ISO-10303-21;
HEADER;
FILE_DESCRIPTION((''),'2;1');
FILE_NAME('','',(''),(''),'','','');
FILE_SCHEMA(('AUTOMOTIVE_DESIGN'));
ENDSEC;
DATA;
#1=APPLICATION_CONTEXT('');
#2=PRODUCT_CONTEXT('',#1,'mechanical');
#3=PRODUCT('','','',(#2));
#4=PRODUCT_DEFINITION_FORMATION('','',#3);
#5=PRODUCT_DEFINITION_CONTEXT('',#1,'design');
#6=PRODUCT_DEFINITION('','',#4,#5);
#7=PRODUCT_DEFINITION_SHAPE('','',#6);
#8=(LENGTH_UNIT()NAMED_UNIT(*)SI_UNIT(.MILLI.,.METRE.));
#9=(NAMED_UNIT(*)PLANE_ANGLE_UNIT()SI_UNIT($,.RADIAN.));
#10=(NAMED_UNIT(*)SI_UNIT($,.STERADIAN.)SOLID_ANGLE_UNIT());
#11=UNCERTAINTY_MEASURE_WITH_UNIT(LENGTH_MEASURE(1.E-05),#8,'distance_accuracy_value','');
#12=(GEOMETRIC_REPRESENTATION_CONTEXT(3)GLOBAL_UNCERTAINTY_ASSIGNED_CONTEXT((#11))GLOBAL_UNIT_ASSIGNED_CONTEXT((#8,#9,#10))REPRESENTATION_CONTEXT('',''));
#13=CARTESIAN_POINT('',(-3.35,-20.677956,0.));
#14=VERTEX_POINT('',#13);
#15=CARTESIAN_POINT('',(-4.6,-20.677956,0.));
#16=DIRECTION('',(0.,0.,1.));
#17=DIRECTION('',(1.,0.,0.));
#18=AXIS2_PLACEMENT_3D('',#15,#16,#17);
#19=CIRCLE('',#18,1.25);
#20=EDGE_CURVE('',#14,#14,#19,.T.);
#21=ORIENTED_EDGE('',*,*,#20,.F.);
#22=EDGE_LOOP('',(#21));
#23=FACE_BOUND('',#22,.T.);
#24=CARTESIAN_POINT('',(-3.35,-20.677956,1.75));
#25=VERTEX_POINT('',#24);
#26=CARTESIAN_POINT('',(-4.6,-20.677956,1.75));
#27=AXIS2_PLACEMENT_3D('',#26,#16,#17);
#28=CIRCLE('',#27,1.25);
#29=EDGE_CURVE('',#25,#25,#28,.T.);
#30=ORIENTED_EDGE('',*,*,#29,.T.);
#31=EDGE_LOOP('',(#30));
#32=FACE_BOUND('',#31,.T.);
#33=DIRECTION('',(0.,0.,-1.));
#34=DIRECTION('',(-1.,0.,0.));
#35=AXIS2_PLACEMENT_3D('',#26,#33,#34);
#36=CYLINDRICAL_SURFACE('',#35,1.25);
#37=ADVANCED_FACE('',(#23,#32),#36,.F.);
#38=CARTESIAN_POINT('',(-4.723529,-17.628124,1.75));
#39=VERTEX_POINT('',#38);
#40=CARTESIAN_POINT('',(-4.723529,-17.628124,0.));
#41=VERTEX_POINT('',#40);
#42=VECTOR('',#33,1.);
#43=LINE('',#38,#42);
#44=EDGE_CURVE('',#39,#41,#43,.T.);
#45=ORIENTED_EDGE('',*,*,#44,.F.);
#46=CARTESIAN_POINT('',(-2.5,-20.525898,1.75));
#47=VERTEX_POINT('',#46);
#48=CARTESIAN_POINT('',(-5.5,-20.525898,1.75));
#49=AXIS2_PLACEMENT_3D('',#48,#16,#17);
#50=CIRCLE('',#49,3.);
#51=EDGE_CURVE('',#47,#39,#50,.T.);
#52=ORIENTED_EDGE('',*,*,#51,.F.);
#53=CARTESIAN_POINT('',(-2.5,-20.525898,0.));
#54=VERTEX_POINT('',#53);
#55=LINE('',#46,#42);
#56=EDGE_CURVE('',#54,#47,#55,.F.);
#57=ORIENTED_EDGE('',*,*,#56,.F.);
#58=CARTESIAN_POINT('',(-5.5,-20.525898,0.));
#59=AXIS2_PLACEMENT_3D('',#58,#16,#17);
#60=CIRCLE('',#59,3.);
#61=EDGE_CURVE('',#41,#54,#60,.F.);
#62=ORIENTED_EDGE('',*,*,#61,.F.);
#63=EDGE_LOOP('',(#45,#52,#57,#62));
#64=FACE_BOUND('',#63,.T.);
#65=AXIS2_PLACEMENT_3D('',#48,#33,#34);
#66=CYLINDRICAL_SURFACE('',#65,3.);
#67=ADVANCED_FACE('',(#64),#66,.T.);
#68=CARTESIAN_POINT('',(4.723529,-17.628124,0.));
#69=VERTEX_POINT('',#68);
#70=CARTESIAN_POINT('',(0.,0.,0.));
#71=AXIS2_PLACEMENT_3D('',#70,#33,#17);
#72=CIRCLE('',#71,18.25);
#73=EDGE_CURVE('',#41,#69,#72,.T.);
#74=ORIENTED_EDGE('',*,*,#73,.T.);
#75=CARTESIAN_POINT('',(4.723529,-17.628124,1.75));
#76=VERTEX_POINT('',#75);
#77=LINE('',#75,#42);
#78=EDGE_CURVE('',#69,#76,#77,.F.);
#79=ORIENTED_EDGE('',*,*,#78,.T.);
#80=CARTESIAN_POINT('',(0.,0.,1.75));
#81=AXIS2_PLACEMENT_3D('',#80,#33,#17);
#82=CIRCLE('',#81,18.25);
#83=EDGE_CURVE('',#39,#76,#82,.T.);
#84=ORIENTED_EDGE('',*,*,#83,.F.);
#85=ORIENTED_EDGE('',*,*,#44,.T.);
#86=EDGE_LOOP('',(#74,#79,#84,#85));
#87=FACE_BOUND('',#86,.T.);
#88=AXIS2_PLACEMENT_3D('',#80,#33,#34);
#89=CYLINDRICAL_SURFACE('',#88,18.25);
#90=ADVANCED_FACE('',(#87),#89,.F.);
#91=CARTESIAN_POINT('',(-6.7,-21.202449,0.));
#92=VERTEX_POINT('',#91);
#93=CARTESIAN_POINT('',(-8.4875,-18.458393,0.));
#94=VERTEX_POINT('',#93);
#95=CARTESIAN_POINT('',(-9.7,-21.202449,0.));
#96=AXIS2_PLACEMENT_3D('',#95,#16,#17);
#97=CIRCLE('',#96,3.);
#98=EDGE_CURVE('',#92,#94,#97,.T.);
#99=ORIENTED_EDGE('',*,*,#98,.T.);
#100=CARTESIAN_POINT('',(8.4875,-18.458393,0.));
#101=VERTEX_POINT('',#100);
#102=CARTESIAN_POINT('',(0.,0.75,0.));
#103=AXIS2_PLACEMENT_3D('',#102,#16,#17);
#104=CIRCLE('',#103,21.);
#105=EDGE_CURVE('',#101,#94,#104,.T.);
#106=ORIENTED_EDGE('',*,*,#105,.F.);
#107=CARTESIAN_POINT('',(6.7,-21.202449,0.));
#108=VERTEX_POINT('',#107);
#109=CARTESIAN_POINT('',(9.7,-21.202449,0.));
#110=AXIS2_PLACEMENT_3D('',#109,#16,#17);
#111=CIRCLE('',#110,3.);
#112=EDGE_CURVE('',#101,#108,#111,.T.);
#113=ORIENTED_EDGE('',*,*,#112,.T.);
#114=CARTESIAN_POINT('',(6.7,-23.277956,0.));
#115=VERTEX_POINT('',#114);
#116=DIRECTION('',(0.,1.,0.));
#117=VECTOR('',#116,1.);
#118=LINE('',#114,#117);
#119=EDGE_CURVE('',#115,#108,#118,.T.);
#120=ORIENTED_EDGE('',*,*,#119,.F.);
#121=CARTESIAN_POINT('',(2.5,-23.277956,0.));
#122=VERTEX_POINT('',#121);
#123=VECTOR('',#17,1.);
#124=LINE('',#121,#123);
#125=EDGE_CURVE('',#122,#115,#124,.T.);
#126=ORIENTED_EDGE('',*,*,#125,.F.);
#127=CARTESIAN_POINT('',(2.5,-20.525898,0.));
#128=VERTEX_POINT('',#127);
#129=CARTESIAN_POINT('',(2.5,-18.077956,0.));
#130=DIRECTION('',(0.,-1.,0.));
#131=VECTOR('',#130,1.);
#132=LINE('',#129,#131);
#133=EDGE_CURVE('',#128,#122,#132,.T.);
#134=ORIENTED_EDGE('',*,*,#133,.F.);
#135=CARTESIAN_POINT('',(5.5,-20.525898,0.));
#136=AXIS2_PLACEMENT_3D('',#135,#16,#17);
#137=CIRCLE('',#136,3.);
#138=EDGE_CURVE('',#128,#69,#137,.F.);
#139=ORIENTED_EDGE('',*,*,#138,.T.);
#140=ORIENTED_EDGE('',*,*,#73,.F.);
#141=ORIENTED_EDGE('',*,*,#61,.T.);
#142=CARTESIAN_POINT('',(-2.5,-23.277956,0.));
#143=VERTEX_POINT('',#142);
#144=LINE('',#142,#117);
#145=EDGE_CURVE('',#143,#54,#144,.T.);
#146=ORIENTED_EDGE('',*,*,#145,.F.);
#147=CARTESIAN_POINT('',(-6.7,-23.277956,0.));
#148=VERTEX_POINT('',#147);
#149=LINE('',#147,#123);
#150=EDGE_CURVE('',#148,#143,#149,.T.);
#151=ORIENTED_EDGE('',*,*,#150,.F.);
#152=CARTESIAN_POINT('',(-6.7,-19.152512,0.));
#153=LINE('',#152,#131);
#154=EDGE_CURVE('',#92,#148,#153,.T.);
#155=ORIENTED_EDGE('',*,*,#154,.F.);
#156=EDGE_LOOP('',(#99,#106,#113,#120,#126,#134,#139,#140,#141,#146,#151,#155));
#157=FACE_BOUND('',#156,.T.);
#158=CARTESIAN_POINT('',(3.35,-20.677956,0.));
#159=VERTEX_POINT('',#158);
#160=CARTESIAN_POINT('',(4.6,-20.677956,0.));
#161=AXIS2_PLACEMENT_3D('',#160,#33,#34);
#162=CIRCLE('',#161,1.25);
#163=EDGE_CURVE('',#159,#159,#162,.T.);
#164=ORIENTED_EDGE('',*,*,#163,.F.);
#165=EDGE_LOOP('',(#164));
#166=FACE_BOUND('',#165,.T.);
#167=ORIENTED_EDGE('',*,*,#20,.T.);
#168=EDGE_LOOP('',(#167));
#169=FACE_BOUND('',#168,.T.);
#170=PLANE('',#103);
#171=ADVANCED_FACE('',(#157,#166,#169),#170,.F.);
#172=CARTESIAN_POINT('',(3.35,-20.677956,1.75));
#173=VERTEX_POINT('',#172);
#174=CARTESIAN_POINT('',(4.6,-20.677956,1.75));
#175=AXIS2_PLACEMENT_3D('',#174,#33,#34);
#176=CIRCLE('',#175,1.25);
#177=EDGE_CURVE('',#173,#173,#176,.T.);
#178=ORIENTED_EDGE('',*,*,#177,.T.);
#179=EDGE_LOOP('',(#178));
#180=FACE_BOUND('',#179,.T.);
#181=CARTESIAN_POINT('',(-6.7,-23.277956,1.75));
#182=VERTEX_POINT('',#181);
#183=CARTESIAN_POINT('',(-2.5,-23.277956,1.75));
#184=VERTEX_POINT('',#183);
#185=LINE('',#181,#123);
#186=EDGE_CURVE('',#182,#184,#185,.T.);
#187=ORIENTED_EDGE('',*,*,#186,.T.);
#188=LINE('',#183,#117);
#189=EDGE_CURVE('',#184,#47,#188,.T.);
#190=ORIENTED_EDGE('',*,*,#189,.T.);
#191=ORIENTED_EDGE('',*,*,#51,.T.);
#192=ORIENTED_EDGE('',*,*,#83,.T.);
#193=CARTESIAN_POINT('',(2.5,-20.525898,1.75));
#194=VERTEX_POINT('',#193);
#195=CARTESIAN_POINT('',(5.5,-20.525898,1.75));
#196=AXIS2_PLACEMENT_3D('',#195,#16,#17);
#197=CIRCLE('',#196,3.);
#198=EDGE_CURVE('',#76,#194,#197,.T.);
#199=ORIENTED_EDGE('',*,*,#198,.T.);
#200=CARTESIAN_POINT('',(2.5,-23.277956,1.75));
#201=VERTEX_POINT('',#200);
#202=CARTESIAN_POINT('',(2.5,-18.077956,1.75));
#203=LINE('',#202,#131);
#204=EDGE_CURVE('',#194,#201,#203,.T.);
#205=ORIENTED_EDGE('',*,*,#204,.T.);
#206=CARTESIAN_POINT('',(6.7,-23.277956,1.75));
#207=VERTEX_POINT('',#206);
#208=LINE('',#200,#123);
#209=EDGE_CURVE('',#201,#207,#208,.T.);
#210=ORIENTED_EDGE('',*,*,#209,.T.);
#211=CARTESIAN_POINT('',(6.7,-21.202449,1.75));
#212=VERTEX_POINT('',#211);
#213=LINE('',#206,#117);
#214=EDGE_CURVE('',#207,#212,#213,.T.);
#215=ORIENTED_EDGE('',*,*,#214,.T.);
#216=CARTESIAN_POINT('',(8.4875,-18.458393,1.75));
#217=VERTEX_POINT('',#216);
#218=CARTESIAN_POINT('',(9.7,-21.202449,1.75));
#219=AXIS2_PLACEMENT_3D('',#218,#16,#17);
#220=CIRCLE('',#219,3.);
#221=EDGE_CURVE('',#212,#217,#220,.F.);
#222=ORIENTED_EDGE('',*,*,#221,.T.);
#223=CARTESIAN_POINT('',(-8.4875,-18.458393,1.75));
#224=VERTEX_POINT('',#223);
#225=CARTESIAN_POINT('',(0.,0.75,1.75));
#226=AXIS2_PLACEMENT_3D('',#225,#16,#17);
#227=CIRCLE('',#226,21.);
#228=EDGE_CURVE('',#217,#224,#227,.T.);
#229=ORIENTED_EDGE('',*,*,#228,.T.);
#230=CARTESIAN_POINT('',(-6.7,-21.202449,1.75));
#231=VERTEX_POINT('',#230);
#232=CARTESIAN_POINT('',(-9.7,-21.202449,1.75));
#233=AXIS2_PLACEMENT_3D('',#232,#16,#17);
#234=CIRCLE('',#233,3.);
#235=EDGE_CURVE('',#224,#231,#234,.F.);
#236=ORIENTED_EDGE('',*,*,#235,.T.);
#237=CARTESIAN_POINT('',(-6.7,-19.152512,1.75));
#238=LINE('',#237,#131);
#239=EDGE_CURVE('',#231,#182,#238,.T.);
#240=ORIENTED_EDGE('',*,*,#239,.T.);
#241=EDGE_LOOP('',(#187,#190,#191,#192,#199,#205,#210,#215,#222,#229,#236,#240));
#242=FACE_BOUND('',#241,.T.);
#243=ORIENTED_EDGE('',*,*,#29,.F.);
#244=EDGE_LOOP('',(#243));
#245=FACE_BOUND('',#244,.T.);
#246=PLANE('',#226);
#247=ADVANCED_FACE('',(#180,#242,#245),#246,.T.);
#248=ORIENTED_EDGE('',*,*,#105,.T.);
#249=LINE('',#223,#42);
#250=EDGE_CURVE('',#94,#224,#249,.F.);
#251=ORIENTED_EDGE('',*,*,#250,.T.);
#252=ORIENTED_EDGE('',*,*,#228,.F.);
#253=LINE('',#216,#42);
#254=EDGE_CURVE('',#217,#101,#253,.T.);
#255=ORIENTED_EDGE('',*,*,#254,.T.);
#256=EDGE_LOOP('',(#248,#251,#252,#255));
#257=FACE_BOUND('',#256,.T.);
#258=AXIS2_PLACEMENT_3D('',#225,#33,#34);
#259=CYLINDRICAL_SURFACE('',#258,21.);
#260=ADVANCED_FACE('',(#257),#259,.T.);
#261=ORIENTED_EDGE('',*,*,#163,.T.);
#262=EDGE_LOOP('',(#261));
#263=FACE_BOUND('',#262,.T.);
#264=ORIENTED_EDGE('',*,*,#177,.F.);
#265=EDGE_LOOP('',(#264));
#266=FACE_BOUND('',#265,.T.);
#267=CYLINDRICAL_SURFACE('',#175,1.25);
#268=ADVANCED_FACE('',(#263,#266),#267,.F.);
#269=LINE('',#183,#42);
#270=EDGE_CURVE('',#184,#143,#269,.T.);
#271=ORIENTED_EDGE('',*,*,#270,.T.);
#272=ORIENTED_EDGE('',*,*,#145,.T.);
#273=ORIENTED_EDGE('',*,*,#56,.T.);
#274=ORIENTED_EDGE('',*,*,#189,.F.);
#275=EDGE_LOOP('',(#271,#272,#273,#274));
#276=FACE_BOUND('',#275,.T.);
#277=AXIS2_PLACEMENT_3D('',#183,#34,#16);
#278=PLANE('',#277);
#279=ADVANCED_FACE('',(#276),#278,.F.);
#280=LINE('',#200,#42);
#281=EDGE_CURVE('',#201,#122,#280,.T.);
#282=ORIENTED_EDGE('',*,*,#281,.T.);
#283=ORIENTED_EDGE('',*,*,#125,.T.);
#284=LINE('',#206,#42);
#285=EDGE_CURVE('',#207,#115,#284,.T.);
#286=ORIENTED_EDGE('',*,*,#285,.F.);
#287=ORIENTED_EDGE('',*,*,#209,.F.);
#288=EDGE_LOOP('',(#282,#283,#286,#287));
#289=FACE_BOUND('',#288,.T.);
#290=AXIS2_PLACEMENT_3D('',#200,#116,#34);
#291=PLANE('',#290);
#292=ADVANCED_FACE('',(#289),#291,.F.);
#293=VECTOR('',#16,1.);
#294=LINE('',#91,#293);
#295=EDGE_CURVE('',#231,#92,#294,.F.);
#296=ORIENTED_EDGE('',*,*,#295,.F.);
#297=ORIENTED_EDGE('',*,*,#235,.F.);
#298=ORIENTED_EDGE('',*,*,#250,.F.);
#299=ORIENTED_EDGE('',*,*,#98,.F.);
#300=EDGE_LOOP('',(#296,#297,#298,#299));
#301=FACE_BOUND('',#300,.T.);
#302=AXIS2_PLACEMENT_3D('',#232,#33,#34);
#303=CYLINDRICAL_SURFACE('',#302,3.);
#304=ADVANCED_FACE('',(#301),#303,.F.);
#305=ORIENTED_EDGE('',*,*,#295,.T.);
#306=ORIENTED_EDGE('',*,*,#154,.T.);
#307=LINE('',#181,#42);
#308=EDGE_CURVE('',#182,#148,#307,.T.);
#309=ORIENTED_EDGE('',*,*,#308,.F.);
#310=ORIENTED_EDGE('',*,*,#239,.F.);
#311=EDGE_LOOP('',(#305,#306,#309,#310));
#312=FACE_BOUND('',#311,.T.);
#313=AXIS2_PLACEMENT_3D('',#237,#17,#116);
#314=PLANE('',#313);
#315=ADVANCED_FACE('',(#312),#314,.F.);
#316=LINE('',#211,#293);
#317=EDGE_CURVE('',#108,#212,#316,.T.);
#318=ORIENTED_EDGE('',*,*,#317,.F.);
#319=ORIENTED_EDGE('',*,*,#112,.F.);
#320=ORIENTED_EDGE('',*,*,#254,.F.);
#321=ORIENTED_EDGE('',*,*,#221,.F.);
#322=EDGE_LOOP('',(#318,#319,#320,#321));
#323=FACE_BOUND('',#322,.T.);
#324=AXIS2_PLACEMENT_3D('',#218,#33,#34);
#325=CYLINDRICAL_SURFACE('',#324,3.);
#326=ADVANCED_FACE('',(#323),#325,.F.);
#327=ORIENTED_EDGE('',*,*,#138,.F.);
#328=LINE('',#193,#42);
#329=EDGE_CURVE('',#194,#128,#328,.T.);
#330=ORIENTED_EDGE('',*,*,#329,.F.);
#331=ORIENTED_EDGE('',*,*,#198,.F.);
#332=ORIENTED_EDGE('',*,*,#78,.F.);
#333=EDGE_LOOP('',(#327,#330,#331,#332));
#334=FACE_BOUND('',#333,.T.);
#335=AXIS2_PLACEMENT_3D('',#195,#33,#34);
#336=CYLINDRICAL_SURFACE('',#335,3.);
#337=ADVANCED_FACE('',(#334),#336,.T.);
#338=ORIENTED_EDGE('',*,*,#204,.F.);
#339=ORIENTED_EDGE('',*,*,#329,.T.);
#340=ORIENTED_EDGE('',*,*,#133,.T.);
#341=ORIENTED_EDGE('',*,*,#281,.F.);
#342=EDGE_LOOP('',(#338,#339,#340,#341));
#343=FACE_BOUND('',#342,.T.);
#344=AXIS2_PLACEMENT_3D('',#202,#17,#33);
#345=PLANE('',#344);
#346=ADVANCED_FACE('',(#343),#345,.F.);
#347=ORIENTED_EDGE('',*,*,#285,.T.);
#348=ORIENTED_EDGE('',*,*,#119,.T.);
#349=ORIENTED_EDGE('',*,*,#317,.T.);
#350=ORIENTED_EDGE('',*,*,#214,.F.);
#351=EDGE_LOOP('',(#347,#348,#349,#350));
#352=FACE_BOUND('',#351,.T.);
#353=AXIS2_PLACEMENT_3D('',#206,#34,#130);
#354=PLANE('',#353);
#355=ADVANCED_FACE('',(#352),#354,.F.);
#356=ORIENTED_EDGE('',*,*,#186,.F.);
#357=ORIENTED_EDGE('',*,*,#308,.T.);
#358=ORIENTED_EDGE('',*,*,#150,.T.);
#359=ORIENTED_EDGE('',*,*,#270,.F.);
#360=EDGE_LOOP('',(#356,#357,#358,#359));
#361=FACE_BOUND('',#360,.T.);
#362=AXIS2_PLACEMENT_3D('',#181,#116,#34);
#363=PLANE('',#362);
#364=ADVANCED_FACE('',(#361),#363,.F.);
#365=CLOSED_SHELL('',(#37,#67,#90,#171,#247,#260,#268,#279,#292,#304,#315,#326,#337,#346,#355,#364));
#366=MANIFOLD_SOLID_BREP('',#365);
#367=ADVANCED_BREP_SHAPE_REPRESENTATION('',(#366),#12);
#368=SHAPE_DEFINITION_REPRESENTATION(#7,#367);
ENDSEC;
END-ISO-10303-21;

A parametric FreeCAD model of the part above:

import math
import FreeCAD as App
import Part
import Sketcher


def edges_at(feature, points):
    """Names of the edges that pass closest to the given points."""
    edges = feature.Shape.Edges
    near = lambda p: min(range(len(edges)), key=lambda i: edges[i].distToShape(Part.Vertex(*p))[0])
    return sorted({f"Edge{near(p) + 1}" for p in points})

doc = App.newDocument("Part")
body = doc.addObject("PartDesign::Body", "Body")

# Sketch on XY plane
sketch1 = doc.addObject("Sketcher::SketchObject", "Sketch")
body.addObject(sketch1)
sketch1.AttachmentSupport = (doc.XY_Plane, [""])
sketch1.MapMode = "FlatFace"
sketch1.addGeometry(Part.LineSegment(App.Vector(-6.7, -19.152512, 0), App.Vector(-6.7, -23.277956, 0)), False)
sketch1.addGeometry(Part.LineSegment(App.Vector(-6.7, -23.277956, 0), App.Vector(-2.5, -23.277956, 0)), False)
sketch1.addGeometry(Part.LineSegment(App.Vector(-2.5, -23.277956, 0), App.Vector(-2.5, -18.077956, 0)), False)
sketch1.addGeometry(Part.ArcOfCircle(Part.Circle(App.Vector(0, 0, 0), App.Vector(0, 0, 1), 18.25), math.radians(-82.126506), math.radians(262.126506)), False)
sketch1.addGeometry(Part.LineSegment(App.Vector(2.5, -18.077956, 0), App.Vector(2.5, -23.277956, 0)), False)
sketch1.addGeometry(Part.LineSegment(App.Vector(2.5, -23.277956, 0), App.Vector(6.7, -23.277956, 0)), False)
sketch1.addGeometry(Part.LineSegment(App.Vector(6.7, -23.277956, 0), App.Vector(6.7, -19.152512, 0)), False)
sketch1.addGeometry(Part.ArcOfCircle(Part.Circle(App.Vector(0, 0.75, 0), App.Vector(0, 0, 1), 21), math.radians(-71.394661), math.radians(251.394661)), False)
sketch1.addConstraint(Sketcher.Constraint("Coincident", 0, 2, 1, 1))
sketch1.addConstraint(Sketcher.Constraint("Coincident", 1, 2, 2, 1))
sketch1.addConstraint(Sketcher.Constraint("Coincident", 2, 2, 3, 2))
sketch1.addConstraint(Sketcher.Constraint("Coincident", 3, 1, 4, 1))
sketch1.addConstraint(Sketcher.Constraint("Coincident", 4, 2, 5, 1))
sketch1.addConstraint(Sketcher.Constraint("Coincident", 5, 2, 6, 1))
sketch1.addConstraint(Sketcher.Constraint("Coincident", 6, 2, 7, 1))
sketch1.addConstraint(Sketcher.Constraint("Coincident", 7, 2, 0, 1))
sketch1.addConstraint(Sketcher.Constraint("Vertical", 0))
sketch1.addConstraint(Sketcher.Constraint("Horizontal", 1))
sketch1.addConstraint(Sketcher.Constraint("Vertical", 2))
sketch1.addConstraint(Sketcher.Constraint("Vertical", 4))
sketch1.addConstraint(Sketcher.Constraint("Horizontal", 5))
sketch1.addConstraint(Sketcher.Constraint("Vertical", 6))
sketch1.addConstraint(Sketcher.Constraint("Coincident", 3, 3, -1, 1))
sketch1.addConstraint(Sketcher.Constraint("Symmetric", 1, 2, 4, 2, -2))
sketch1.addConstraint(Sketcher.Constraint("Symmetric", 6, 2, 7, 2, -2))
sketch1.addConstraint(Sketcher.Constraint("Radius", 7, 21.0))
sketch1.addConstraint(Sketcher.Constraint("Radius", 3, 18.25))
sketch1.addConstraint(Sketcher.Constraint("DistanceX", 1, 1, 1, 2, 4.2))
sketch1.addConstraint(Sketcher.Constraint("DistanceY", 2, 1, 2, 2, 5.2))
sketch1.addConstraint(Sketcher.Constraint("DistanceX", 2, 2, 3, 1, 5.0))
sketch1.addConstraint(Sketcher.Constraint("DistanceY", -1, 1, 7, 3, 0.75))
pad1 = doc.addObject("PartDesign::Pad", "Pad")
body.addObject(pad1)
pad1.Profile = sketch1
pad1.Length = 1.75

# Sketch on XY plane
sketch2 = doc.addObject("Sketcher::SketchObject", "Sketch001")
body.addObject(sketch2)
sketch2.AttachmentSupport = (doc.XY_Plane, [""])
sketch2.MapMode = "FlatFace"
sketch2.addGeometry(Part.Circle(App.Vector(4.6, -20.677956, 0), App.Vector(0, 0, 1), 1.25), False)
sketch2.addConstraint(Sketcher.Constraint("Diameter", 0, 2.5))
sketch2.addConstraint(Sketcher.Constraint("DistanceX", -1, 1, 0, 3, 4.6))
sketch2.addConstraint(Sketcher.Constraint("DistanceY", 0, 3, -1, 1, 20.677956))
pocket1 = doc.addObject("PartDesign::Pocket", "Pocket")
body.addObject(pocket1)
pocket1.Profile = sketch2
pocket1.Type = "ThroughAll"
pocket1.Reversed = True
doc.recompute()

fillet = doc.addObject("PartDesign::Fillet", "Fillet")
body.addObject(fillet)
fillet.Base = (pocket1, edges_at(pocket1, [(6.7, -19.153, 0.875), (-6.7, -19.153, 0.875)]))
fillet.Radius = 3
doc.recompute()

fillet2 = doc.addObject("PartDesign::Fillet", "Fillet001")
body.addObject(fillet2)
fillet2.Base = (fillet, edges_at(fillet, [(2.5, -18.078, 0.875), (-2.5, -18.078, 0.875)]))
fillet2.Radius = 3
doc.recompute()

mirrored = doc.addObject("PartDesign::Mirrored", "Mirrored")
body.addObject(mirrored)
mirrored.Originals = [pocket1]
mirrored.MirrorPlane = (doc.YZ_Plane, [""])
body.Tip = mirrored

doc.recompute()
